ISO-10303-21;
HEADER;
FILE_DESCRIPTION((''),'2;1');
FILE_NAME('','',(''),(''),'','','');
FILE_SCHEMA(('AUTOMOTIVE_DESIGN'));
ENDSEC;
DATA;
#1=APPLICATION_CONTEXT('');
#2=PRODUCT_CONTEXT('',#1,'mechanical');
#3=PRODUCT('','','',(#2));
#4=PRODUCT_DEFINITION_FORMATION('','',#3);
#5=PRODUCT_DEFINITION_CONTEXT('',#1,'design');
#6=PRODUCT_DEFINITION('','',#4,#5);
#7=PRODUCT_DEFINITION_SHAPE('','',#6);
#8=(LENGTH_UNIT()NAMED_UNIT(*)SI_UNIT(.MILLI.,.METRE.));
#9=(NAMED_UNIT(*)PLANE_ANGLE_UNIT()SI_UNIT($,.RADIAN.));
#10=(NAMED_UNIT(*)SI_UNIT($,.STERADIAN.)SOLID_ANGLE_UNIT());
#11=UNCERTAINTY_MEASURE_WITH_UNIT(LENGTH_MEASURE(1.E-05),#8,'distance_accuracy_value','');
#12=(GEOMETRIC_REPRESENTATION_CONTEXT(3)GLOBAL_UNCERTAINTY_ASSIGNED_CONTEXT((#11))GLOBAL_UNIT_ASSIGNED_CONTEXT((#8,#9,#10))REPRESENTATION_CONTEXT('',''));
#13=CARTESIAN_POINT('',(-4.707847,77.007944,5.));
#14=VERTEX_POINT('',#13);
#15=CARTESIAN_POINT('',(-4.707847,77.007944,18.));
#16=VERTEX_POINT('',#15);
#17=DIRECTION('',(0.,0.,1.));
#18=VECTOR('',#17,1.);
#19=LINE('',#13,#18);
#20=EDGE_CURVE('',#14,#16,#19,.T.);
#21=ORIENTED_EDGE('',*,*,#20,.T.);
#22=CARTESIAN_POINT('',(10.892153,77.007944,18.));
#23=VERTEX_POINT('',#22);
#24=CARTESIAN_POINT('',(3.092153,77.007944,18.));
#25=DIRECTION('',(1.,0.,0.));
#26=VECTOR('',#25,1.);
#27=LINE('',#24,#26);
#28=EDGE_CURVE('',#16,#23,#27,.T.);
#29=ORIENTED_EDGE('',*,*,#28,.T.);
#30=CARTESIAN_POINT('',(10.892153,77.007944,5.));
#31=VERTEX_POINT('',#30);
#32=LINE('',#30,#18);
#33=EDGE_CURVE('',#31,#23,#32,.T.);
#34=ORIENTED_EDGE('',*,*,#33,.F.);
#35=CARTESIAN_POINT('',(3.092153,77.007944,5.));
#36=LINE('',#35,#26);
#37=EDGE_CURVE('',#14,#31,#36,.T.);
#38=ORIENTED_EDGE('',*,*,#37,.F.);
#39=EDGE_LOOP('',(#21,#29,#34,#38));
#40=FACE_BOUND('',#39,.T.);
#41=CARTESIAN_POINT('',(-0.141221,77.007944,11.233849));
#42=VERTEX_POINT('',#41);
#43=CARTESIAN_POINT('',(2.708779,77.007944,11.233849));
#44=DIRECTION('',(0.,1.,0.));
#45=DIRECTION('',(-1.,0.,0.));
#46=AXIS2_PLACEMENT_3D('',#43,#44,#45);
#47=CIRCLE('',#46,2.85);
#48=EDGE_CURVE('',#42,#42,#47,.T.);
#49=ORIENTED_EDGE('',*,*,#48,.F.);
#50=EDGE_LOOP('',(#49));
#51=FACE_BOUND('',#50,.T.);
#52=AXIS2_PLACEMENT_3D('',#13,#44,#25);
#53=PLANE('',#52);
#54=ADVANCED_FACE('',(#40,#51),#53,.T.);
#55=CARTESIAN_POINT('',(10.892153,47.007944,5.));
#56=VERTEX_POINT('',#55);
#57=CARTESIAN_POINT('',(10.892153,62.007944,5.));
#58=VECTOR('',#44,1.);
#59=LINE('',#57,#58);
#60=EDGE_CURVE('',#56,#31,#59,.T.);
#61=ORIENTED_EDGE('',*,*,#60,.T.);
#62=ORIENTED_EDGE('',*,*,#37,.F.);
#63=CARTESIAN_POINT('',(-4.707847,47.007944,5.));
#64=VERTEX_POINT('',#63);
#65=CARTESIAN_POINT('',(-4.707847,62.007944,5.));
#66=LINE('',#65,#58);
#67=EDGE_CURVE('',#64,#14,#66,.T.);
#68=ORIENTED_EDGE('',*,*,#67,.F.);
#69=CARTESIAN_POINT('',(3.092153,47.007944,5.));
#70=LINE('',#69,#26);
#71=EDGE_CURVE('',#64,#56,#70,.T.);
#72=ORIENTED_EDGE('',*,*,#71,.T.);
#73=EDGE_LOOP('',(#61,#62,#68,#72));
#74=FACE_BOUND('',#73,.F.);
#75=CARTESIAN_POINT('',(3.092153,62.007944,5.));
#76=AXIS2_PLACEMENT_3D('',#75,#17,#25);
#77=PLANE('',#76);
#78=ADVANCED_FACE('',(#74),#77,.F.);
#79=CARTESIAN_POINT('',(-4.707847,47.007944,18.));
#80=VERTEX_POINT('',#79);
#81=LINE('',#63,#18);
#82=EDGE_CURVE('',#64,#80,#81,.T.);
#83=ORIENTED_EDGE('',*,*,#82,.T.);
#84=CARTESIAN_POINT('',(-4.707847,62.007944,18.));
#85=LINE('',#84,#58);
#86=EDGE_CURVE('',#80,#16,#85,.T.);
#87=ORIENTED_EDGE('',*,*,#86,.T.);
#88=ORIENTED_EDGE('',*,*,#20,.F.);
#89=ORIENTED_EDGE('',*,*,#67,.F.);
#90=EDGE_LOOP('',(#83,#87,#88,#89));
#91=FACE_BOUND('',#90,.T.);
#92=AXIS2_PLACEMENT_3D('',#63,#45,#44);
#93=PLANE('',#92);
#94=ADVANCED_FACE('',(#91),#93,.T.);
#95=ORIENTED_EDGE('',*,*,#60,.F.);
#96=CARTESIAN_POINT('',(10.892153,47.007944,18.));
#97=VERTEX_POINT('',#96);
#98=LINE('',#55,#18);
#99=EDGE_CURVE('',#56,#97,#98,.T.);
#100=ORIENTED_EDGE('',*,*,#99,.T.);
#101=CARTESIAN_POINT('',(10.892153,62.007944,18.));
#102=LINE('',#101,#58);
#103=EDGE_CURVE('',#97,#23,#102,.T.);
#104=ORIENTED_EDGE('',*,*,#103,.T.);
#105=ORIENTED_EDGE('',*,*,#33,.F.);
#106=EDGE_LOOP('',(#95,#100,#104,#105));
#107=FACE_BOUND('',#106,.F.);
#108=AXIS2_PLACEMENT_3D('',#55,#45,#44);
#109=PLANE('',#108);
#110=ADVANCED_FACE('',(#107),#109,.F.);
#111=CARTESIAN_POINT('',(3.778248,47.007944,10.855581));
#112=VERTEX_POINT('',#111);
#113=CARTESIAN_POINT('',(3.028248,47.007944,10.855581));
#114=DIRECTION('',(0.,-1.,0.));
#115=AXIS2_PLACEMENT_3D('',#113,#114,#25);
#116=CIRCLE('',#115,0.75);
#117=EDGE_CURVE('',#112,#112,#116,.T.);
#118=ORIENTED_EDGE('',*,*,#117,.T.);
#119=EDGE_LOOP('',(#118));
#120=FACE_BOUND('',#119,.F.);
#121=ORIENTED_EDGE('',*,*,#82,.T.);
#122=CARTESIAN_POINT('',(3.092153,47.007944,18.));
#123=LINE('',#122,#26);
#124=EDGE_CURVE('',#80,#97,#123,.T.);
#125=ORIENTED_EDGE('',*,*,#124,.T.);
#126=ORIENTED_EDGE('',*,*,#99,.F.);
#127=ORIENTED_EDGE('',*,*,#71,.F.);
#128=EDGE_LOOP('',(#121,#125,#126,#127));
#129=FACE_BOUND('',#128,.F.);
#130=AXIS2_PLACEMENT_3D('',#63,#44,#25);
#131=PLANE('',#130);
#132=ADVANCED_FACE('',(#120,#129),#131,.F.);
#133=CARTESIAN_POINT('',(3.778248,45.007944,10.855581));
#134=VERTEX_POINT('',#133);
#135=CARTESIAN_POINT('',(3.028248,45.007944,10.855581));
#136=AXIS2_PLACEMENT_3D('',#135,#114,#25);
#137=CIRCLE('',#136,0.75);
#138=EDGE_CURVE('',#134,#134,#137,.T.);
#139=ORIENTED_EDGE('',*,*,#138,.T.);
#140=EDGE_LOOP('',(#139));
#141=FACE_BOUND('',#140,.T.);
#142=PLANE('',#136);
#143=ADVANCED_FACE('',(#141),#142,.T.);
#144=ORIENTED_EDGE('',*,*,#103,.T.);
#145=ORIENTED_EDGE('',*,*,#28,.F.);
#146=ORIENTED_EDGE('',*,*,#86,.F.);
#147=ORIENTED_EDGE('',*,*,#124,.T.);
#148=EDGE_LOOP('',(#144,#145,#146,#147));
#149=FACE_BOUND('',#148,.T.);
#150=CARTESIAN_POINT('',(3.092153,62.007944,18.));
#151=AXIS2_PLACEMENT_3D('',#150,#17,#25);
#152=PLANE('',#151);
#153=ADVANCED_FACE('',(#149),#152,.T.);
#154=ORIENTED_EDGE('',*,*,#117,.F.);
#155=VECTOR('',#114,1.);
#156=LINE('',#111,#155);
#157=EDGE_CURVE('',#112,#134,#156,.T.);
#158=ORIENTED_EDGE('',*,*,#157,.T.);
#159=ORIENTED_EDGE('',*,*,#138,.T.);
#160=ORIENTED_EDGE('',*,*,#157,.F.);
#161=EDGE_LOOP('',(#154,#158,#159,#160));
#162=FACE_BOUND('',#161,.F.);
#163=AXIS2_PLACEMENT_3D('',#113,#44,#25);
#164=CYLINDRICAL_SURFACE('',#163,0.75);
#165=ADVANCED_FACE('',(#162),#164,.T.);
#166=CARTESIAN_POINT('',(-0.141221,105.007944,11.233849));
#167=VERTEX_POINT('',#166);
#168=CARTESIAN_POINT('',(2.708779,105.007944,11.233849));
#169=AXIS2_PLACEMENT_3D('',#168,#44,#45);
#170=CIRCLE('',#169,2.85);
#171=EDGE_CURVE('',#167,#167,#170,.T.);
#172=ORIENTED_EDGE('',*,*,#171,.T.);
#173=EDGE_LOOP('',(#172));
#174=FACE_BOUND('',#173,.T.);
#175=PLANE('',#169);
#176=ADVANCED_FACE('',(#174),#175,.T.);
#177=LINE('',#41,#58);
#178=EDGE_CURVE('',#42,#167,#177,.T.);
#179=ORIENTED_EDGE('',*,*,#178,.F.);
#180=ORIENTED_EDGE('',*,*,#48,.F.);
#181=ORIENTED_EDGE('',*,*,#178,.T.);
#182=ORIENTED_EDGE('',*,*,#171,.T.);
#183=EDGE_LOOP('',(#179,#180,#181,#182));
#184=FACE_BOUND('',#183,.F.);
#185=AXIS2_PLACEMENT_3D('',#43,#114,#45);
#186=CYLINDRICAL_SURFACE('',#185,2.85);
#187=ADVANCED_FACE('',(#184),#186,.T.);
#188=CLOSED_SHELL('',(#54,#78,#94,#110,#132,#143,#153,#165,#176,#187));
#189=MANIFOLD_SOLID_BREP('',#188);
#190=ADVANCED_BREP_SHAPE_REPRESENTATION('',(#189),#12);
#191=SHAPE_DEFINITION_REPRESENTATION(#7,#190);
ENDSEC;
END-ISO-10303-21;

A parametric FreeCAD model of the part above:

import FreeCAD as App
import Part
import Sketcher

V = App.Vector
Q = App.Units.Quantity

doc = App.newDocument("Part")
body = doc.addObject("PartDesign::Body", "Body")

# Sketch on XY plane
sketch1 = body.newObject("Sketcher::SketchObject", "Sketch")
sketch1.AttachmentSupport = (doc.getObject("XY_Plane"), [""])
sketch1.MapMode = "FlatFace"
sketch1.addGeometry([
    Part.LineSegment(V(-5, 9, 0), V(-5, -21, 0)),
    Part.LineSegment(V(-5, -21, 0), V(11, -21, 0)),
    Part.LineSegment(V(11, -21, 0), V(11, 9, 0)),
    Part.LineSegment(V(11, 9, 0), V(-5, 9, 0)),
], False)
sketch1.addConstraint([
    Sketcher.Constraint("Coincident", 0, 2, 1, 1),
    Sketcher.Constraint("Coincident", 1, 2, 2, 1),
    Sketcher.Constraint("Coincident", 2, 2, 3, 1),
    Sketcher.Constraint("Coincident", 3, 2, 0, 1),
    Sketcher.Constraint("Vertical", 0),
    Sketcher.Constraint("Horizontal", 1),
    Sketcher.Constraint("Vertical", 2),
    Sketcher.Constraint("Horizontal", 3),
    Sketcher.Constraint("DistanceY", 0, 2, 0, 1, Q("30 mm")),
    Sketcher.Constraint("DistanceX", 1, 1, 1, 2, Q("15.6 mm")),
    Sketcher.Constraint("DistanceX", 0, 2, -1, 1, Q("4.707847 mm")),
    Sketcher.Constraint("DistanceY", 0, 2, -1, 1, Q("20.992056 mm")),
])
pad1 = body.newObject("PartDesign::Pad", "Pad")
pad1.Profile = sketch1
pad1.Length = 13

# Sketch on XZ plane
sketch2 = body.newObject("Sketcher::SketchObject", "Sketch001")
sketch2.AttachmentSupport = (doc.getObject("XZ_Plane"), [""])
sketch2.MapMode = "FlatFace"
sketch2.AttachmentOffset = App.Placement(V(0, 0, -9.007944), App.Rotation())
sketch2.addGeometry(Part.Circle(V(2.7, 6.2, 0), V(0, 0, 1), 2.9), False)
sketch2.addConstraint([
    Sketcher.Constraint("Diameter", 0, Q("5.7 mm")),
    Sketcher.Constraint("DistanceX", -1, 1, 0, 3, Q("2.708779 mm")),
    Sketcher.Constraint("DistanceY", -1, 1, 0, 3, Q("6.233849 mm")),
])
pad2 = body.newObject("PartDesign::Pad", "Pad001")
pad2.Profile = sketch2
pad2.Length = 28
pad2.Reversed = True

# Sketch on XZ plane
sketch3 = body.newObject("Sketcher::SketchObject", "Sketch002")
sketch3.AttachmentSupport = (doc.getObject("XZ_Plane"), [""])
sketch3.MapMode = "FlatFace"
sketch3.AttachmentOffset = App.Placement(V(0, 0, 20.992056), App.Rotation())
sketch3.addGeometry(Part.Circle(V(3, 5.9, 0), V(0, 0, 1), 0.8), False)
sketch3.addConstraint([
    Sketcher.Constraint("Diameter", 0, Q("1.5 mm")),
    Sketcher.Constraint("DistanceX", -1, 1, 0, 3, Q("3.028248 mm")),
    Sketcher.Constraint("DistanceY", -1, 1, 0, 3, Q("5.855581 mm")),
])
pad3 = body.newObject("PartDesign::Pad", "Pad002")
pad3.Profile = sketch3
pad3.Length = 2
body2 = doc.addObject("PartDesign::Body", "Body001")
doc.recompute()

body.Placement = App.Placement(V(0, 68, 5), App.Rotation(V(0, 0, 1), 0))
boolean = body2.newObject("PartDesign::Boolean", "Boolean")
boolean.Type = "Fuse"
boolean.addObjects([body])

doc.recompute()
